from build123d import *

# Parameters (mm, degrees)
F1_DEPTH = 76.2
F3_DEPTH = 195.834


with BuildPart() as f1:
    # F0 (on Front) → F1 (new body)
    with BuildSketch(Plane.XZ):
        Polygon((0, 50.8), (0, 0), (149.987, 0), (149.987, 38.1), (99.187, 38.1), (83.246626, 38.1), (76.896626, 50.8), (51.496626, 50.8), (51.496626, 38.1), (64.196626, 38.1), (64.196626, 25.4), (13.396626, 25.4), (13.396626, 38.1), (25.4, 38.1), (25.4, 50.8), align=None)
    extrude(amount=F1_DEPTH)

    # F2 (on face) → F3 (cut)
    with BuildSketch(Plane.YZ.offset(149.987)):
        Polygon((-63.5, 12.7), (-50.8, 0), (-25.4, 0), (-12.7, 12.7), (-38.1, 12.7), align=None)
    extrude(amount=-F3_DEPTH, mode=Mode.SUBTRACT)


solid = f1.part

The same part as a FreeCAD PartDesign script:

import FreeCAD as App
import Part
import Sketcher

V = App.Vector
Q = App.Units.Quantity

doc = App.newDocument("Part")
params = doc.addObject("Spreadsheet::Sheet", "Params")
for row, (alias, value) in enumerate([
    ("sketch1_width", "1 in"),
    ("sketch1_width2", "2 in"),
    ("sketch1_width3", "0.5 in"),
    ("sketch1_width4", "5.905 in"),
    ("pad1_length", "3 in"),
    ("sketch2_width", "1 in"),
    ("sketch2_width2", "2 in"),
    ("pocket1_length", "7.71 in"),
], start=1):
    params.set(f"A{row}", alias)
    params.set(f"B{row}", "=" + value)
    params.setAlias(f"B{row}", alias)

body = doc.addObject("PartDesign::Body", "Body")

# Sketch on XZ plane
sketch1 = body.newObject("Sketcher::SketchObject", "Sketch")
sketch1.AttachmentSupport = (doc.getObject("XZ_Plane"), [""])
sketch1.MapMode = "FlatFace"
sketch1.addGeometry([
    Part.LineSegment(V(0, 51, 0), V(0, 0, 0)),  # 0
    Part.LineSegment(V(0, 0, 0), V(150, 0, 0)),  # 1
    Part.LineSegment(V(150, 0, 0), V(150, 38, 0)),  # 2
    Part.LineSegment(V(150, 38, 0), V(83, 38, 0)),  # 3
    Part.LineSegment(V(83, 38, 0), V(77, 51, 0)),  # 4
    Part.LineSegment(V(77, 51, 0), V(51, 51, 0)),  # 5
    Part.LineSegment(V(51, 51, 0), V(51, 38, 0)),  # 6
    Part.LineSegment(V(51, 38, 0), V(64, 38, 0)),  # 7
    Part.LineSegment(V(64, 38, 0), V(64, 25, 0)),  # 8
    Part.LineSegment(V(64, 25, 0), V(13, 25, 0)),  # 9
    Part.LineSegment(V(13, 25, 0), V(13, 38, 0)),  # 10
    Part.LineSegment(V(13, 38, 0), V(25, 38, 0)),  # 11
    Part.LineSegment(V(25, 38, 0), V(25, 51, 0)),  # 12
    Part.LineSegment(V(25, 51, 0), V(0, 51, 0)),  # 13
], False)
sketch1.addConstraint([
    Sketcher.Constraint("Coincident", 0, 2, 1, 1),
    Sketcher.Constraint("Coincident", 1, 2, 2, 1),
    Sketcher.Constraint("Coincident", 2, 2, 3, 1),
    Sketcher.Constraint("Coincident", 3, 2, 4, 1),
    Sketcher.Constraint("Coincident", 4, 2, 5, 1),
    Sketcher.Constraint("Coincident", 5, 2, 6, 1),
    Sketcher.Constraint("Coincident", 6, 2, 7, 1),
    Sketcher.Constraint("Coincident", 7, 2, 8, 1),
    Sketcher.Constraint("Coincident", 8, 2, 9, 1),
    Sketcher.Constraint("Coincident", 9, 2, 10, 1),
    Sketcher.Constraint("Coincident", 10, 2, 11, 1),
    Sketcher.Constraint("Coincident", 11, 2, 12, 1),
    Sketcher.Constraint("Coincident", 12, 2, 13, 1),
    Sketcher.Constraint("Coincident", 13, 2, 0, 1),
    Sketcher.Constraint("Vertical", 0),
    Sketcher.Constraint("Horizontal", 1),
    Sketcher.Constraint("Vertical", 2),
    Sketcher.Constraint("Horizontal", 3),
    Sketcher.Constraint("Horizontal", 5),
    Sketcher.Constraint("Vertical", 6),
    Sketcher.Constraint("Horizontal", 7),
    Sketcher.Constraint("Vertical", 8),
    Sketcher.Constraint("Horizontal", 9),
    Sketcher.Constraint("Vertical", 10),
    Sketcher.Constraint("Horizontal", 11),
    Sketcher.Constraint("Vertical", 12),
    Sketcher.Constraint("Horizontal", 13),
    Sketcher.Constraint("Coincident", 0, 2, -1, 1),
    Sketcher.Constraint("Horizontal", 3, 2, 6, 2),
    Sketcher.Constraint("Horizontal", 7, 2, 10, 2),
    Sketcher.Constraint("Horizontal", 5, 2, 12, 2),
    Sketcher.Constraint("Equal", 5, 13),
    Sketcher.Constraint("Equal", 9, 0),
    Sketcher.Constraint("Equal", 7, 6),
    Sketcher.Constraint("Equal", 6, 8),
    Sketcher.Constraint("DistanceX", 5, 2, 5, 1, Q("1 in")),
    Sketcher.Constraint("DistanceX", 9, 2, 9, 1, Q("2 in")),
    Sketcher.Constraint("DistanceX", 7, 1, 7, 2, Q("0.5 in")),
    Sketcher.Constraint("DistanceX", 1, 1, 1, 2, Q("5.905 in")),
    Sketcher.Constraint("DistanceX", 4, 2, 3, 2, Q("0.25 in")),
    Sketcher.Constraint("DistanceX", 3, 2, 3, 1, Q("66.740374 mm")),
])
sketch1.setExpression("Constraints[35]", "Params.sketch1_width")
sketch1.setExpression("Constraints[36]", "Params.sketch1_width2")
sketch1.setExpression("Constraints[37]", "Params.sketch1_width3")
sketch1.setExpression("Constraints[38]", "Params.sketch1_width4")
pad1 = body.newObject("PartDesign::Pad", "Pad")
pad1.Profile = sketch1
pad1.setExpression("Length", "Params.pad1_length")

# Sketch on YZ plane
sketch2 = body.newObject("Sketcher::SketchObject", "Sketch001")
sketch2.AttachmentSupport = (doc.getObject("YZ_Plane"), [""])
sketch2.MapMode = "FlatFace"
sketch2.AttachmentOffset = App.Placement(V(0, 0, 5.905 * 25.4), App.Rotation())
sketch2.addGeometry([
    Part.LineSegment(V(-64, 13, 0), V(-51, 0, 0)),
    Part.LineSegment(V(-51, 0, 0), V(-25, 0, 0)),
    Part.LineSegment(V(-25, 0, 0), V(-13, 13, 0)),
    Part.LineSegment(V(-13, 13, 0), V(-64, 13, 0)),
], False)
sketch2.addConstraint([
    Sketcher.Constraint("Coincident", 0, 2, 1, 1),
    Sketcher.Constraint("Coincident", 1, 2, 2, 1),
    Sketcher.Constraint("Coincident", 2, 2, 3, 1),
    Sketcher.Constraint("Coincident", 3, 2, 0, 1),
    Sketcher.Constraint("Horizontal", 1),
    Sketcher.Constraint("Horizontal", 3),
    Sketcher.Constraint("PointOnObject", 0, 2, -1),
    Sketcher.Constraint("Perpendicular", 0, 2),
    Sketcher.Constraint("Equal", 0, 2),
    Sketcher.Constraint("DistanceX", 1, 1, 1, 2, Q("1 in")),
    Sketcher.Constraint("DistanceX", 3, 2, 3, 1, Q("2 in")),
    Sketcher.Constraint("DistanceX", 0, 2, -1, 1, Q("2 in")),
])
sketch2.setExpression("Constraints[9]", "Params.sketch2_width")
sketch2.setExpression("Constraints[10]", "Params.sketch2_width2")
pocket1 = body.newObject("PartDesign::Pocket", "Pocket")
pocket1.Profile = sketch2
pocket1.setExpression("Length", "Params.pocket1_length")

doc.recompute()
